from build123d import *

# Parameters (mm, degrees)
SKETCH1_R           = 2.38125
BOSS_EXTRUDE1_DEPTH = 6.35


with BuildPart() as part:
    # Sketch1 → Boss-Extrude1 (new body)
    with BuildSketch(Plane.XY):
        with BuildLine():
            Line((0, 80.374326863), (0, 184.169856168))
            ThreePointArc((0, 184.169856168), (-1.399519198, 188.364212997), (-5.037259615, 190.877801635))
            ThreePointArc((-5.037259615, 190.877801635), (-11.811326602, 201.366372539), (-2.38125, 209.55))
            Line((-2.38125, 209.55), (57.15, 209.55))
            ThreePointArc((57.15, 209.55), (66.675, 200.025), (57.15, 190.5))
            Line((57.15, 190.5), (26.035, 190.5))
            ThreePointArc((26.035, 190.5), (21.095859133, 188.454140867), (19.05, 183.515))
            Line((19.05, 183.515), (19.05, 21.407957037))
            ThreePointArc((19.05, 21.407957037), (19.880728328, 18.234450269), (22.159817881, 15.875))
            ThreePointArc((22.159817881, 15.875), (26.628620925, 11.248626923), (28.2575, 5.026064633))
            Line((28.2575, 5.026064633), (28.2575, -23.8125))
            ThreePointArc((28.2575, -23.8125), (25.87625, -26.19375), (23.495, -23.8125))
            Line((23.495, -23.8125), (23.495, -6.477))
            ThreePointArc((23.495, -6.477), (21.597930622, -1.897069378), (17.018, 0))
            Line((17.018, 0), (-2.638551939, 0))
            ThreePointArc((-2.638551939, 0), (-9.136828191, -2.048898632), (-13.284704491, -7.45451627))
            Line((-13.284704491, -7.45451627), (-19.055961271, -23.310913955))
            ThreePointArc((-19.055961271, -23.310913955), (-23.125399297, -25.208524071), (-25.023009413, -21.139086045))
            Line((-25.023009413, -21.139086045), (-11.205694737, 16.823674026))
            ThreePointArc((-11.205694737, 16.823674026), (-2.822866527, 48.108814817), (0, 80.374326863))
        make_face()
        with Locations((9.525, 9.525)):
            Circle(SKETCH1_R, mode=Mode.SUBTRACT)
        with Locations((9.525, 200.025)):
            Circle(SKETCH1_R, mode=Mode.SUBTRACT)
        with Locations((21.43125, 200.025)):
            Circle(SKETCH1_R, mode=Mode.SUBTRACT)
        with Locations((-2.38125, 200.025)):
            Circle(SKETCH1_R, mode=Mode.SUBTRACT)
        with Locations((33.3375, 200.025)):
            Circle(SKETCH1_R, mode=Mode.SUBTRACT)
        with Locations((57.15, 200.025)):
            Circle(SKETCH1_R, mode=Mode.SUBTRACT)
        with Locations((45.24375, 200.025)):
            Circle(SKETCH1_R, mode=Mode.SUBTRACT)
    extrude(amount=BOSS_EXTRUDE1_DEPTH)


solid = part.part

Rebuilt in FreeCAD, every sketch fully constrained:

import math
import FreeCAD as App
import Part
import Sketcher
Q = App.Units.Quantity

doc = App.newDocument("Part")
params = doc.addObject("Spreadsheet::Sheet", "Params")
for row, (alias, value) in enumerate([
    ("sketch1_radius", "0.5 in"),
    ("sketch1_diameter", "0.1875 in"),
    ("sketch1_radius2", "0.125 in"),
    ("sketch1_radius3", "0.255 in"),
    ("sketch1_radius4", "0.275 in"),
    ("pad1_length", "0.25 in"),
], start=1):
    params.set(f"A{row}", alias)
    params.set(f"B{row}", "=" + value)
    params.setAlias(f"B{row}", alias)

body = doc.addObject("PartDesign::Body", "Body")

sketch1 = body.newObject("Sketcher::SketchObject", "Sketch")
sketch1.AttachmentSupport = (doc.getObject("XY_Plane"), [""])
sketch1.MapMode = "FlatFace"
sketch1.addGeometry([
    Part.LineSegment(App.Vector(0, 184.2, 0), App.Vector(0, 80.4, 0)),
    Part.ArcOfCircle(Part.Circle(App.Vector(-185.8, 80.4, 0), App.Vector(0, 0, 1), 185.8), math.radians(-20), math.radians(0)),
    Part.LineSegment(App.Vector(-11.2, 16.8, 0), App.Vector(-25, -21.1, 0)),
    Part.ArcOfCircle(Part.Circle(App.Vector(-22, -22.2, 0), App.Vector(0, 0, 1), 3.2), math.radians(160), math.radians(340)),
    Part.LineSegment(App.Vector(-19.1, -23.3, 0), App.Vector(-13.3, -7.5, 0)),
    Part.ArcOfCircle(Part.Circle(App.Vector(-2.6, -11.3, 0), App.Vector(0, 0, 1), 11.3), math.radians(90), math.radians(160)),
    Part.LineSegment(App.Vector(-2.6, 0, 0), App.Vector(17, 0, 0)),
    Part.ArcOfCircle(Part.Circle(App.Vector(17, -6.5, 0), App.Vector(0, 0, 1), 6.5), math.radians(0), math.radians(90)),
    Part.LineSegment(App.Vector(23.5, -6.5, 0), App.Vector(23.5, -23.8, 0)),
    Part.ArcOfCircle(Part.Circle(App.Vector(25.9, -23.8, 0), App.Vector(0, 0, 1), 2.4), math.radians(180), math.radians(360)),
    Part.LineSegment(App.Vector(28.3, -23.8, 0), App.Vector(28.3, 5, 0)),
    Part.ArcOfCircle(Part.Circle(App.Vector(15.6, 5, 0), App.Vector(0, 0, 1), 12.7), math.radians(0), math.radians(59)),
    Part.ArcOfCircle(Part.Circle(App.Vector(25.5, 21.4, 0), App.Vector(0, 0, 1), 6.5), math.radians(180), math.radians(239)),
    Part.LineSegment(App.Vector(19.1, 21.4, 0), App.Vector(19.1, 183.5, 0)),
    Part.ArcOfCircle(Part.Circle(App.Vector(26, 183.5, 0), App.Vector(0, 0, 1), 7), math.radians(90), math.radians(180)),
    Part.LineSegment(App.Vector(26, 190.5, 0), App.Vector(57.1, 190.5, 0)),
    Part.ArcOfCircle(Part.Circle(App.Vector(57.1, 200, 0), App.Vector(0, 0, 1), 9.5), math.radians(-90), math.radians(90)),
    Part.LineSegment(App.Vector(57.1, 209.6, 0), App.Vector(-2.4, 209.6, 0)),
    Part.ArcOfCircle(Part.Circle(App.Vector(-2.4, 200, 0), App.Vector(0, 0, 1), 9.5), math.radians(90), math.radians(254)),
    Part.ArcOfCircle(Part.Circle(App.Vector(-7, 184.2, 0), App.Vector(0, 0, 1), 7), math.radians(0), math.radians(74)),
    Part.Circle(App.Vector(9.5, 9.5, 0), App.Vector(0, 0, 1), 2.4),
    Part.Circle(App.Vector(57.1, 200, 0), App.Vector(0, 0, 1), 2.4),
    Part.Circle(App.Vector(45.2, 200, 0), App.Vector(0, 0, 1), 2.4),
    Part.Circle(App.Vector(33.3, 200, 0), App.Vector(0, 0, 1), 2.4),
    Part.Circle(App.Vector(21.4, 200, 0), App.Vector(0, 0, 1), 2.4),
    Part.Circle(App.Vector(9.5, 200, 0), App.Vector(0, 0, 1), 2.4),
    Part.Circle(App.Vector(-2.4, 200, 0), App.Vector(0, 0, 1), 2.4),
], False)
sketch1.addConstraint([
    Sketcher.Constraint("Tangent", 0, 2, 1, 2),
    Sketcher.Constraint("Tangent", 1, 1, 2, 1),
    Sketcher.Constraint("Tangent", 2, 2, 3, 1),
    Sketcher.Constraint("Tangent", 3, 2, 4, 1),
    Sketcher.Constraint("Tangent", 4, 2, 5, 2),
    Sketcher.Constraint("Tangent", 5, 1, 6, 1),
    Sketcher.Constraint("Tangent", 6, 2, 7, 2),
    Sketcher.Constraint("Tangent", 7, 1, 8, 1),
    Sketcher.Constraint("Tangent", 8, 2, 9, 1),
    Sketcher.Constraint("Tangent", 9, 2, 10, 1),
    Sketcher.Constraint("Tangent", 10, 2, 11, 1),
    Sketcher.Constraint("Tangent", 11, 2, 12, 2),
    Sketcher.Constraint("Tangent", 12, 1, 13, 1),
    Sketcher.Constraint("Tangent", 13, 2, 14, 2),
    Sketcher.Constraint("Tangent", 14, 1, 15, 1),
    Sketcher.Constraint("Tangent", 15, 2, 16, 1),
    Sketcher.Constraint("Tangent", 16, 2, 17, 1),
    Sketcher.Constraint("Tangent", 17, 2, 18, 1),
    Sketcher.Constraint("Tangent", 18, 2, 19, 2),
    Sketcher.Constraint("Tangent", 19, 1, 0, 1),
    Sketcher.Constraint("Vertical", 0),
    Sketcher.Constraint("Horizontal", 6),
    Sketcher.Constraint("Vertical", 8),
    Sketcher.Constraint("Vertical", 10),
    Sketcher.Constraint("Vertical", 13),
    Sketcher.Constraint("Horizontal", 15),
    Sketcher.Constraint("Horizontal", 17),
    Sketcher.Constraint("Coincident", 21, 3, 16, 3),
    Sketcher.Constraint("Coincident", 26, 3, 18, 3),
    Sketcher.Constraint("Equal", 7, 12),
    Sketcher.Constraint("Equal", 16, 18),
    Sketcher.Constraint("Equal", 14, 19),
    Sketcher.Constraint("Equal", 9, 20),
    Sketcher.Constraint("Equal", 20, 21),
    Sketcher.Constraint("Equal", 21, 22),
    Sketcher.Constraint("Equal", 22, 23),
    Sketcher.Constraint("Equal", 23, 24),
    Sketcher.Constraint("Equal", 24, 25),
    Sketcher.Constraint("Equal", 25, 26),
    Sketcher.Constraint("PointOnObject", 0, 2, -2),
    Sketcher.Constraint("PointOnObject", 5, 1, -1),
    Sketcher.Constraint("Parallel", 2, 4),
    Sketcher.Constraint("Horizontal", 21, 3, 22, 3),
    Sketcher.Constraint("Horizontal", 22, 3, 23, 3),
    Sketcher.Constraint("Horizontal", 23, 3, 24, 3),
    Sketcher.Constraint("Horizontal", 24, 3, 25, 3),
    Sketcher.Constraint("Vertical", 20, 3, 25, 3),
    Sketcher.Constraint("Radius", 11, Q("0.5 in")),
    Sketcher.Constraint("Diameter", 20, Q("0.1875 in")),
    Sketcher.Constraint("Angle", 2, Q("-110 deg")),
    Sketcher.Constraint("Radius", 3, Q("0.125 in")),
    Sketcher.Constraint("Radius", 7, Q("0.255 in")),
    Sketcher.Constraint("Radius", 14, Q("0.275 in")),
    Sketcher.Constraint("Radius", 16, Q("0.375 in")),
    Sketcher.Constraint("DistanceY", -1, 1, 14, 1, Q("7.5 in")),
    Sketcher.Constraint("DistanceX", 19, 3, 14, 3, Q("1.3 in")),
    Sketcher.Constraint("DistanceX", 15, 1, 15, 2, Q("1.225 in")),
    Sketcher.Constraint("DistanceX", 17, 2, 17, 1, Q("2.34375 in")),
    Sketcher.Constraint("DistanceX", -1, 1, 7, 3, Q("0.67 in")),
    Sketcher.Constraint("Radius", 5, 11.329399),
    Sketcher.Constraint("DistanceY", 3, 3, 7, 3, Q("0.62 in")),
    Sketcher.Constraint("DistanceY", 7, 3, 20, 3, Q("0.63 in")),
    Sketcher.Constraint("DistanceX", 20, 3, 12, 3, Q("0.63 in")),
    Sketcher.Constraint("DistanceY", 20, 3, 11, 2, Q("0.25 in")),
    Sketcher.Constraint("DistanceY", 8, 2, 8, 1, Q("0.6825 in")),
    Sketcher.Constraint("DistanceX", -1, 1, 22, 3, Q("1.78125 in")),
    Sketcher.Constraint("DistanceX", -1, 1, 23, 3, Q("1.3125 in")),
    Sketcher.Constraint("DistanceX", -1, 1, 24, 3, Q("0.84375 in")),
    Sketcher.Constraint("Radius", 1, 185.809678),
    Sketcher.Constraint("DistanceX", 6, 1, 6, 2, 19.656552),
])
sketch1.setExpression("Constraints[47]", "Params.sketch1_radius")
sketch1.setExpression("Constraints[48]", "Params.sketch1_diameter")
sketch1.setExpression("Constraints[50]", "Params.sketch1_radius2")
sketch1.setExpression("Constraints[51]", "Params.sketch1_radius3")
sketch1.setExpression("Constraints[52]", "Params.sketch1_radius4")
pad1 = body.newObject("PartDesign::Pad", "Pad")
pad1.Profile = sketch1
pad1.setExpression("Length", "Params.pad1_length")

doc.recompute()
